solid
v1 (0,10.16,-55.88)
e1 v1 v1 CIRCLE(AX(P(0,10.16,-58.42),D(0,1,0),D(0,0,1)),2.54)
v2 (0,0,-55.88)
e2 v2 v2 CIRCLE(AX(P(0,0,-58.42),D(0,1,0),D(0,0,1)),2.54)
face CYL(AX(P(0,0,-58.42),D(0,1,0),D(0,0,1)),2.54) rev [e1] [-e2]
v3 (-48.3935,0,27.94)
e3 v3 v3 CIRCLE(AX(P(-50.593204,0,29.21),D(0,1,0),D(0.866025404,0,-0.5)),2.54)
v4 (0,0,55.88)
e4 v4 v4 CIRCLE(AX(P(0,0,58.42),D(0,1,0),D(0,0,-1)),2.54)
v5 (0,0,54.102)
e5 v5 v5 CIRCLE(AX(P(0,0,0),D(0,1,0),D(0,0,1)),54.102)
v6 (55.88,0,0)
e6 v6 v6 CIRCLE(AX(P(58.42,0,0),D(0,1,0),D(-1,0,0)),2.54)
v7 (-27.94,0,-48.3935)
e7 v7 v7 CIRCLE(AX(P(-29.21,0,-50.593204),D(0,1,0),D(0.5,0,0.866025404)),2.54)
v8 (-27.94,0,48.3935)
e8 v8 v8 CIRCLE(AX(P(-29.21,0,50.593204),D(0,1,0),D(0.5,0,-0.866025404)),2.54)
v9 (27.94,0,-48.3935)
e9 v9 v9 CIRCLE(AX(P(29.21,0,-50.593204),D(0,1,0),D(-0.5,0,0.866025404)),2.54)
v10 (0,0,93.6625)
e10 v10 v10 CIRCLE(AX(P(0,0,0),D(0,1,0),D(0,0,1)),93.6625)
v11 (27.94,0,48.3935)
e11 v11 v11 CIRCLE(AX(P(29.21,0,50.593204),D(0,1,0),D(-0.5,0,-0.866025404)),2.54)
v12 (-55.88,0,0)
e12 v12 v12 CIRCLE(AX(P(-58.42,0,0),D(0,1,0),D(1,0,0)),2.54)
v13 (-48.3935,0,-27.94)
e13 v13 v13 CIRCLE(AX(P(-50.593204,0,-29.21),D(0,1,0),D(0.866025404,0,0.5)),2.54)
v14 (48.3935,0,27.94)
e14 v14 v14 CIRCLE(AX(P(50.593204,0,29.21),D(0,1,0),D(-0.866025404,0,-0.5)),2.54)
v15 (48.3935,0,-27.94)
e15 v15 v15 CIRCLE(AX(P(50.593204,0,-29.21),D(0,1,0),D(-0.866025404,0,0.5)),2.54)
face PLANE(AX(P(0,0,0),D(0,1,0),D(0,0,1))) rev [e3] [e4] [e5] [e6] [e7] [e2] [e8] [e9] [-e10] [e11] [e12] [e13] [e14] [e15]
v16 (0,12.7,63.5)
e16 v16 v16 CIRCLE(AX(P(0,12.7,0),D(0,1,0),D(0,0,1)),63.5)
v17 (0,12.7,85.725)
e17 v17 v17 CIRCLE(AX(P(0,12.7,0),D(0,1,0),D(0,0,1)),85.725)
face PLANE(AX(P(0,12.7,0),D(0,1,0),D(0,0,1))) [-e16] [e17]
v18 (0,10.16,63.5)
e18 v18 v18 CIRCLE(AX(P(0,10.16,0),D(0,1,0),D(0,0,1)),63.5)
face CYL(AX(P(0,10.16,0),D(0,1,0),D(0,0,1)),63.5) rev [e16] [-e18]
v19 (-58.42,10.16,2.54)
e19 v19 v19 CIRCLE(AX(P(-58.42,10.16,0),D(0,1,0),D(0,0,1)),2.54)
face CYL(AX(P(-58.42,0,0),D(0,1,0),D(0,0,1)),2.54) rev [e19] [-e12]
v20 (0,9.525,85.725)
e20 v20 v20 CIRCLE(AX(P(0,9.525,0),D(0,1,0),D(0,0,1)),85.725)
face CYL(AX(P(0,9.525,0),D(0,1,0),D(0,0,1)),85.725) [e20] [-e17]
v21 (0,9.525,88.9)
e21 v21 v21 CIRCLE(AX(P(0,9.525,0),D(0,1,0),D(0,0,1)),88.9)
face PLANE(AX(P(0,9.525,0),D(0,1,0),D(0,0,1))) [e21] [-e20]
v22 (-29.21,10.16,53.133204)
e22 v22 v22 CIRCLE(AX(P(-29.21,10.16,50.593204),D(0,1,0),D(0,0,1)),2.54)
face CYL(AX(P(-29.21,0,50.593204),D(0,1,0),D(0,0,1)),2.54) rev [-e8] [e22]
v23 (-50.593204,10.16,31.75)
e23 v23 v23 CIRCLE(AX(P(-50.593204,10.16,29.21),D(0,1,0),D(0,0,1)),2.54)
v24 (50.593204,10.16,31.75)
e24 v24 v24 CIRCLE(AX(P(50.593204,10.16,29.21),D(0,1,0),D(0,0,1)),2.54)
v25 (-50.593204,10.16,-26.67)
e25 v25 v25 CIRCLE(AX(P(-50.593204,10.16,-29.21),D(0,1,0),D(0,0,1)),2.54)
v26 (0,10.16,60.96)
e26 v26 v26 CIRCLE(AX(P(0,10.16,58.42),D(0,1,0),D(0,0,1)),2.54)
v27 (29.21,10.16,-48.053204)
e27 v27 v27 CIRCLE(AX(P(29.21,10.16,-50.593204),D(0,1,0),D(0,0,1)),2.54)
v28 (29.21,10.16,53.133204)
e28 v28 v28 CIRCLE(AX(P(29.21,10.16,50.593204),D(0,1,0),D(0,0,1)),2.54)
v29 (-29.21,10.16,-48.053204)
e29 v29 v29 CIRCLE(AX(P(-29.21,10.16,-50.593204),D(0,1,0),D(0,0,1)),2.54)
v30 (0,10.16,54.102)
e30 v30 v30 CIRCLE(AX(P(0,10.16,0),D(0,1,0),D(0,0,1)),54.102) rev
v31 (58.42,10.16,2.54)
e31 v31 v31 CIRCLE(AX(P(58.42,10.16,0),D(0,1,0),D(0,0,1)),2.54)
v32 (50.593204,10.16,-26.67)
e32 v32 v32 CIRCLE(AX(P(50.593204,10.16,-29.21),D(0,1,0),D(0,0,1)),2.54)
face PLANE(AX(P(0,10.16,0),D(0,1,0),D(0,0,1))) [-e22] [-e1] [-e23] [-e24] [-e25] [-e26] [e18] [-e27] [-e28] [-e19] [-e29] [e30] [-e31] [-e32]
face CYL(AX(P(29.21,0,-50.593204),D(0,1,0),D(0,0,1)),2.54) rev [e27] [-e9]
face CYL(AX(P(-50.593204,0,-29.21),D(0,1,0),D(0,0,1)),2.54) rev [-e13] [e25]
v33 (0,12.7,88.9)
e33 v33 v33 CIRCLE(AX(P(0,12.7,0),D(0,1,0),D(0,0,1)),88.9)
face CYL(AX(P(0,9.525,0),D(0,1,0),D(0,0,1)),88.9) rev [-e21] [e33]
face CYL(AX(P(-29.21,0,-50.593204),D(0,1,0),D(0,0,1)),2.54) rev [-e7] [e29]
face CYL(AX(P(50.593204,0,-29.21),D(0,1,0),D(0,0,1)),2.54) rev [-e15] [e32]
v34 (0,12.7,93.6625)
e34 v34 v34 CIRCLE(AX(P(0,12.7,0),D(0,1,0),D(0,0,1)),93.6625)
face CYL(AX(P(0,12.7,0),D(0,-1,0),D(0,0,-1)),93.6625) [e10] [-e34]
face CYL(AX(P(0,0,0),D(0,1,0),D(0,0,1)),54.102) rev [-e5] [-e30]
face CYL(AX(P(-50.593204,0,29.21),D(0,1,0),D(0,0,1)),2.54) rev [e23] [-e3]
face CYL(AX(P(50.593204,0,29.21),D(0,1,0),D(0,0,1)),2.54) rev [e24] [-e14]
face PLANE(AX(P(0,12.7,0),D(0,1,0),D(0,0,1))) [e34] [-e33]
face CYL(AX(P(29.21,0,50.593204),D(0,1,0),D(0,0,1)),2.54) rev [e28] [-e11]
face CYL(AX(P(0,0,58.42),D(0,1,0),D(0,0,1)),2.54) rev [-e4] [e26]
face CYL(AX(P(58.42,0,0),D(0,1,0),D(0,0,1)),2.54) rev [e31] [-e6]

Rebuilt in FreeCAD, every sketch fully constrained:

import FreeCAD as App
import Part
import Sketcher
Q = App.Units.Quantity

doc = App.newDocument("Part")
body = doc.addObject("PartDesign::Body", "Body")

sketch1 = doc.addObject("Sketcher::SketchObject", "Sketch")
body.addObject(sketch1)
sketch1.AttachmentSupport = (doc.XZ_Plane, [""])
sketch1.MapMode = "FlatFace"
sketch1.addGeometry(Part.Circle(App.Vector(0, 0, 0), App.Vector(0, 0, 1), 93.6625), False)
sketch1.addConstraint([
    Sketcher.Constraint("Coincident", 0, 3, -1, 1),
    Sketcher.Constraint("Diameter", 0, Q("7.375 in")),
])
pad1 = doc.addObject("PartDesign::Pad", "Pad")
body.addObject(pad1)
pad1.Profile = sketch1
pad1.Length = Q("0.5 in")
pad1.Reversed = True

sketch2 = doc.addObject("Sketcher::SketchObject", "Sketch001")
body.addObject(sketch2)
sketch2.AttachmentSupport = (doc.XZ_Plane, [""])
sketch2.MapMode = "FlatFace"
sketch2.AttachmentOffset = App.Placement(App.Vector(0, 0, -0.5 * 25.4), App.Rotation())
sketch2.addGeometry(Part.Circle(App.Vector(0, 0, 0), App.Vector(0, 0, 1), 54.102), False)
sketch2.addConstraint([
    Sketcher.Constraint("Coincident", 0, 3, -1, 1),
    Sketcher.Constraint("Diameter", 0, Q("4.26 in")),
])
pocket1 = doc.addObject("PartDesign::Pocket", "Pocket")
body.addObject(pocket1)
pocket1.Profile = sketch2
pocket1.Type = "ThroughAll"
pocket1.Reversed = True

sketch3 = doc.addObject("Sketcher::SketchObject", "Sketch002")
body.addObject(sketch3)
sketch3.AttachmentSupport = (doc.XZ_Plane, [""])
sketch3.MapMode = "FlatFace"
sketch3.AttachmentOffset = App.Placement(App.Vector(0, 0, -0.5 * 25.4), App.Rotation())
sketch3.addGeometry(Part.Circle(App.Vector(0, 0, 0), App.Vector(0, 0, 1), 63.5), False)
sketch3.addConstraint([
    Sketcher.Constraint("Coincident", 0, 3, -1, 1),
    Sketcher.Constraint("Diameter", 0, Q("5 in")),
])
pocket2 = doc.addObject("PartDesign::Pocket", "Pocket001")
body.addObject(pocket2)
pocket2.Profile = sketch3
pocket2.Length = Q("0.1 in")
pocket2.Reversed = True

sketch4 = doc.addObject("Sketcher::SketchObject", "Sketch003")
body.addObject(sketch4)
sketch4.AttachmentSupport = (doc.XZ_Plane, [""])
sketch4.MapMode = "FlatFace"
sketch4.AttachmentOffset = App.Placement(App.Vector(0, 0, -0.5 * 25.4), App.Rotation())
sketch4.addGeometry(Part.Circle(App.Vector(0, -58.42, 0), App.Vector(0, 0, 1), 2.54), False)
sketch4.addConstraint([
    Sketcher.Constraint("PointOnObject", 0, 3, -2),
    Sketcher.Constraint("Diameter", 0, Q("0.2 in")),
    Sketcher.Constraint("DistanceY", 0, 3, -1, 1, Q("2.3 in")),
])
pocket3 = doc.addObject("PartDesign::Pocket", "Pocket002")
body.addObject(pocket3)
pocket3.Profile = sketch4
pocket3.Type = "ThroughAll"
pocket3.Reversed = True
doc.recompute()

polarpattern = doc.addObject("PartDesign::PolarPattern", "PolarPattern")
body.addObject(polarpattern)
polarpattern.Originals = [pocket3]
polarpattern.Axis = (doc.Y_Axis, [""])
polarpattern.Angle = 360
polarpattern.Occurrences = 12
body.Tip = polarpattern

sketch5 = doc.addObject("Sketcher::SketchObject", "Sketch004")
body.addObject(sketch5)
sketch5.AttachmentSupport = (doc.XZ_Plane, [""])
sketch5.MapMode = "FlatFace"
sketch5.AttachmentOffset = App.Placement(App.Vector(0, 0, -0.5 * 25.4), App.Rotation())
sketch5.addGeometry([
    Part.Circle(App.Vector(0, 0, 0), App.Vector(0, 0, 1), 88.9),
    Part.Circle(App.Vector(0, 0, 0), App.Vector(0, 0, 1), 85.725),
], False)
sketch5.addConstraint([
    Sketcher.Constraint("Coincident", 0, 3, -1, 1),
    Sketcher.Constraint("Coincident", 1, 3, -1, 1),
    Sketcher.Constraint("Diameter", 0, Q("7 in")),
    Sketcher.Constraint("Diameter", 1, Q("6.75 in")),
])
pocket4 = doc.addObject("PartDesign::Pocket", "Pocket003")
body.addObject(pocket4)
pocket4.Profile = sketch5
pocket4.Length = Q("0.125 in")
pocket4.Reversed = True

doc.recompute()
